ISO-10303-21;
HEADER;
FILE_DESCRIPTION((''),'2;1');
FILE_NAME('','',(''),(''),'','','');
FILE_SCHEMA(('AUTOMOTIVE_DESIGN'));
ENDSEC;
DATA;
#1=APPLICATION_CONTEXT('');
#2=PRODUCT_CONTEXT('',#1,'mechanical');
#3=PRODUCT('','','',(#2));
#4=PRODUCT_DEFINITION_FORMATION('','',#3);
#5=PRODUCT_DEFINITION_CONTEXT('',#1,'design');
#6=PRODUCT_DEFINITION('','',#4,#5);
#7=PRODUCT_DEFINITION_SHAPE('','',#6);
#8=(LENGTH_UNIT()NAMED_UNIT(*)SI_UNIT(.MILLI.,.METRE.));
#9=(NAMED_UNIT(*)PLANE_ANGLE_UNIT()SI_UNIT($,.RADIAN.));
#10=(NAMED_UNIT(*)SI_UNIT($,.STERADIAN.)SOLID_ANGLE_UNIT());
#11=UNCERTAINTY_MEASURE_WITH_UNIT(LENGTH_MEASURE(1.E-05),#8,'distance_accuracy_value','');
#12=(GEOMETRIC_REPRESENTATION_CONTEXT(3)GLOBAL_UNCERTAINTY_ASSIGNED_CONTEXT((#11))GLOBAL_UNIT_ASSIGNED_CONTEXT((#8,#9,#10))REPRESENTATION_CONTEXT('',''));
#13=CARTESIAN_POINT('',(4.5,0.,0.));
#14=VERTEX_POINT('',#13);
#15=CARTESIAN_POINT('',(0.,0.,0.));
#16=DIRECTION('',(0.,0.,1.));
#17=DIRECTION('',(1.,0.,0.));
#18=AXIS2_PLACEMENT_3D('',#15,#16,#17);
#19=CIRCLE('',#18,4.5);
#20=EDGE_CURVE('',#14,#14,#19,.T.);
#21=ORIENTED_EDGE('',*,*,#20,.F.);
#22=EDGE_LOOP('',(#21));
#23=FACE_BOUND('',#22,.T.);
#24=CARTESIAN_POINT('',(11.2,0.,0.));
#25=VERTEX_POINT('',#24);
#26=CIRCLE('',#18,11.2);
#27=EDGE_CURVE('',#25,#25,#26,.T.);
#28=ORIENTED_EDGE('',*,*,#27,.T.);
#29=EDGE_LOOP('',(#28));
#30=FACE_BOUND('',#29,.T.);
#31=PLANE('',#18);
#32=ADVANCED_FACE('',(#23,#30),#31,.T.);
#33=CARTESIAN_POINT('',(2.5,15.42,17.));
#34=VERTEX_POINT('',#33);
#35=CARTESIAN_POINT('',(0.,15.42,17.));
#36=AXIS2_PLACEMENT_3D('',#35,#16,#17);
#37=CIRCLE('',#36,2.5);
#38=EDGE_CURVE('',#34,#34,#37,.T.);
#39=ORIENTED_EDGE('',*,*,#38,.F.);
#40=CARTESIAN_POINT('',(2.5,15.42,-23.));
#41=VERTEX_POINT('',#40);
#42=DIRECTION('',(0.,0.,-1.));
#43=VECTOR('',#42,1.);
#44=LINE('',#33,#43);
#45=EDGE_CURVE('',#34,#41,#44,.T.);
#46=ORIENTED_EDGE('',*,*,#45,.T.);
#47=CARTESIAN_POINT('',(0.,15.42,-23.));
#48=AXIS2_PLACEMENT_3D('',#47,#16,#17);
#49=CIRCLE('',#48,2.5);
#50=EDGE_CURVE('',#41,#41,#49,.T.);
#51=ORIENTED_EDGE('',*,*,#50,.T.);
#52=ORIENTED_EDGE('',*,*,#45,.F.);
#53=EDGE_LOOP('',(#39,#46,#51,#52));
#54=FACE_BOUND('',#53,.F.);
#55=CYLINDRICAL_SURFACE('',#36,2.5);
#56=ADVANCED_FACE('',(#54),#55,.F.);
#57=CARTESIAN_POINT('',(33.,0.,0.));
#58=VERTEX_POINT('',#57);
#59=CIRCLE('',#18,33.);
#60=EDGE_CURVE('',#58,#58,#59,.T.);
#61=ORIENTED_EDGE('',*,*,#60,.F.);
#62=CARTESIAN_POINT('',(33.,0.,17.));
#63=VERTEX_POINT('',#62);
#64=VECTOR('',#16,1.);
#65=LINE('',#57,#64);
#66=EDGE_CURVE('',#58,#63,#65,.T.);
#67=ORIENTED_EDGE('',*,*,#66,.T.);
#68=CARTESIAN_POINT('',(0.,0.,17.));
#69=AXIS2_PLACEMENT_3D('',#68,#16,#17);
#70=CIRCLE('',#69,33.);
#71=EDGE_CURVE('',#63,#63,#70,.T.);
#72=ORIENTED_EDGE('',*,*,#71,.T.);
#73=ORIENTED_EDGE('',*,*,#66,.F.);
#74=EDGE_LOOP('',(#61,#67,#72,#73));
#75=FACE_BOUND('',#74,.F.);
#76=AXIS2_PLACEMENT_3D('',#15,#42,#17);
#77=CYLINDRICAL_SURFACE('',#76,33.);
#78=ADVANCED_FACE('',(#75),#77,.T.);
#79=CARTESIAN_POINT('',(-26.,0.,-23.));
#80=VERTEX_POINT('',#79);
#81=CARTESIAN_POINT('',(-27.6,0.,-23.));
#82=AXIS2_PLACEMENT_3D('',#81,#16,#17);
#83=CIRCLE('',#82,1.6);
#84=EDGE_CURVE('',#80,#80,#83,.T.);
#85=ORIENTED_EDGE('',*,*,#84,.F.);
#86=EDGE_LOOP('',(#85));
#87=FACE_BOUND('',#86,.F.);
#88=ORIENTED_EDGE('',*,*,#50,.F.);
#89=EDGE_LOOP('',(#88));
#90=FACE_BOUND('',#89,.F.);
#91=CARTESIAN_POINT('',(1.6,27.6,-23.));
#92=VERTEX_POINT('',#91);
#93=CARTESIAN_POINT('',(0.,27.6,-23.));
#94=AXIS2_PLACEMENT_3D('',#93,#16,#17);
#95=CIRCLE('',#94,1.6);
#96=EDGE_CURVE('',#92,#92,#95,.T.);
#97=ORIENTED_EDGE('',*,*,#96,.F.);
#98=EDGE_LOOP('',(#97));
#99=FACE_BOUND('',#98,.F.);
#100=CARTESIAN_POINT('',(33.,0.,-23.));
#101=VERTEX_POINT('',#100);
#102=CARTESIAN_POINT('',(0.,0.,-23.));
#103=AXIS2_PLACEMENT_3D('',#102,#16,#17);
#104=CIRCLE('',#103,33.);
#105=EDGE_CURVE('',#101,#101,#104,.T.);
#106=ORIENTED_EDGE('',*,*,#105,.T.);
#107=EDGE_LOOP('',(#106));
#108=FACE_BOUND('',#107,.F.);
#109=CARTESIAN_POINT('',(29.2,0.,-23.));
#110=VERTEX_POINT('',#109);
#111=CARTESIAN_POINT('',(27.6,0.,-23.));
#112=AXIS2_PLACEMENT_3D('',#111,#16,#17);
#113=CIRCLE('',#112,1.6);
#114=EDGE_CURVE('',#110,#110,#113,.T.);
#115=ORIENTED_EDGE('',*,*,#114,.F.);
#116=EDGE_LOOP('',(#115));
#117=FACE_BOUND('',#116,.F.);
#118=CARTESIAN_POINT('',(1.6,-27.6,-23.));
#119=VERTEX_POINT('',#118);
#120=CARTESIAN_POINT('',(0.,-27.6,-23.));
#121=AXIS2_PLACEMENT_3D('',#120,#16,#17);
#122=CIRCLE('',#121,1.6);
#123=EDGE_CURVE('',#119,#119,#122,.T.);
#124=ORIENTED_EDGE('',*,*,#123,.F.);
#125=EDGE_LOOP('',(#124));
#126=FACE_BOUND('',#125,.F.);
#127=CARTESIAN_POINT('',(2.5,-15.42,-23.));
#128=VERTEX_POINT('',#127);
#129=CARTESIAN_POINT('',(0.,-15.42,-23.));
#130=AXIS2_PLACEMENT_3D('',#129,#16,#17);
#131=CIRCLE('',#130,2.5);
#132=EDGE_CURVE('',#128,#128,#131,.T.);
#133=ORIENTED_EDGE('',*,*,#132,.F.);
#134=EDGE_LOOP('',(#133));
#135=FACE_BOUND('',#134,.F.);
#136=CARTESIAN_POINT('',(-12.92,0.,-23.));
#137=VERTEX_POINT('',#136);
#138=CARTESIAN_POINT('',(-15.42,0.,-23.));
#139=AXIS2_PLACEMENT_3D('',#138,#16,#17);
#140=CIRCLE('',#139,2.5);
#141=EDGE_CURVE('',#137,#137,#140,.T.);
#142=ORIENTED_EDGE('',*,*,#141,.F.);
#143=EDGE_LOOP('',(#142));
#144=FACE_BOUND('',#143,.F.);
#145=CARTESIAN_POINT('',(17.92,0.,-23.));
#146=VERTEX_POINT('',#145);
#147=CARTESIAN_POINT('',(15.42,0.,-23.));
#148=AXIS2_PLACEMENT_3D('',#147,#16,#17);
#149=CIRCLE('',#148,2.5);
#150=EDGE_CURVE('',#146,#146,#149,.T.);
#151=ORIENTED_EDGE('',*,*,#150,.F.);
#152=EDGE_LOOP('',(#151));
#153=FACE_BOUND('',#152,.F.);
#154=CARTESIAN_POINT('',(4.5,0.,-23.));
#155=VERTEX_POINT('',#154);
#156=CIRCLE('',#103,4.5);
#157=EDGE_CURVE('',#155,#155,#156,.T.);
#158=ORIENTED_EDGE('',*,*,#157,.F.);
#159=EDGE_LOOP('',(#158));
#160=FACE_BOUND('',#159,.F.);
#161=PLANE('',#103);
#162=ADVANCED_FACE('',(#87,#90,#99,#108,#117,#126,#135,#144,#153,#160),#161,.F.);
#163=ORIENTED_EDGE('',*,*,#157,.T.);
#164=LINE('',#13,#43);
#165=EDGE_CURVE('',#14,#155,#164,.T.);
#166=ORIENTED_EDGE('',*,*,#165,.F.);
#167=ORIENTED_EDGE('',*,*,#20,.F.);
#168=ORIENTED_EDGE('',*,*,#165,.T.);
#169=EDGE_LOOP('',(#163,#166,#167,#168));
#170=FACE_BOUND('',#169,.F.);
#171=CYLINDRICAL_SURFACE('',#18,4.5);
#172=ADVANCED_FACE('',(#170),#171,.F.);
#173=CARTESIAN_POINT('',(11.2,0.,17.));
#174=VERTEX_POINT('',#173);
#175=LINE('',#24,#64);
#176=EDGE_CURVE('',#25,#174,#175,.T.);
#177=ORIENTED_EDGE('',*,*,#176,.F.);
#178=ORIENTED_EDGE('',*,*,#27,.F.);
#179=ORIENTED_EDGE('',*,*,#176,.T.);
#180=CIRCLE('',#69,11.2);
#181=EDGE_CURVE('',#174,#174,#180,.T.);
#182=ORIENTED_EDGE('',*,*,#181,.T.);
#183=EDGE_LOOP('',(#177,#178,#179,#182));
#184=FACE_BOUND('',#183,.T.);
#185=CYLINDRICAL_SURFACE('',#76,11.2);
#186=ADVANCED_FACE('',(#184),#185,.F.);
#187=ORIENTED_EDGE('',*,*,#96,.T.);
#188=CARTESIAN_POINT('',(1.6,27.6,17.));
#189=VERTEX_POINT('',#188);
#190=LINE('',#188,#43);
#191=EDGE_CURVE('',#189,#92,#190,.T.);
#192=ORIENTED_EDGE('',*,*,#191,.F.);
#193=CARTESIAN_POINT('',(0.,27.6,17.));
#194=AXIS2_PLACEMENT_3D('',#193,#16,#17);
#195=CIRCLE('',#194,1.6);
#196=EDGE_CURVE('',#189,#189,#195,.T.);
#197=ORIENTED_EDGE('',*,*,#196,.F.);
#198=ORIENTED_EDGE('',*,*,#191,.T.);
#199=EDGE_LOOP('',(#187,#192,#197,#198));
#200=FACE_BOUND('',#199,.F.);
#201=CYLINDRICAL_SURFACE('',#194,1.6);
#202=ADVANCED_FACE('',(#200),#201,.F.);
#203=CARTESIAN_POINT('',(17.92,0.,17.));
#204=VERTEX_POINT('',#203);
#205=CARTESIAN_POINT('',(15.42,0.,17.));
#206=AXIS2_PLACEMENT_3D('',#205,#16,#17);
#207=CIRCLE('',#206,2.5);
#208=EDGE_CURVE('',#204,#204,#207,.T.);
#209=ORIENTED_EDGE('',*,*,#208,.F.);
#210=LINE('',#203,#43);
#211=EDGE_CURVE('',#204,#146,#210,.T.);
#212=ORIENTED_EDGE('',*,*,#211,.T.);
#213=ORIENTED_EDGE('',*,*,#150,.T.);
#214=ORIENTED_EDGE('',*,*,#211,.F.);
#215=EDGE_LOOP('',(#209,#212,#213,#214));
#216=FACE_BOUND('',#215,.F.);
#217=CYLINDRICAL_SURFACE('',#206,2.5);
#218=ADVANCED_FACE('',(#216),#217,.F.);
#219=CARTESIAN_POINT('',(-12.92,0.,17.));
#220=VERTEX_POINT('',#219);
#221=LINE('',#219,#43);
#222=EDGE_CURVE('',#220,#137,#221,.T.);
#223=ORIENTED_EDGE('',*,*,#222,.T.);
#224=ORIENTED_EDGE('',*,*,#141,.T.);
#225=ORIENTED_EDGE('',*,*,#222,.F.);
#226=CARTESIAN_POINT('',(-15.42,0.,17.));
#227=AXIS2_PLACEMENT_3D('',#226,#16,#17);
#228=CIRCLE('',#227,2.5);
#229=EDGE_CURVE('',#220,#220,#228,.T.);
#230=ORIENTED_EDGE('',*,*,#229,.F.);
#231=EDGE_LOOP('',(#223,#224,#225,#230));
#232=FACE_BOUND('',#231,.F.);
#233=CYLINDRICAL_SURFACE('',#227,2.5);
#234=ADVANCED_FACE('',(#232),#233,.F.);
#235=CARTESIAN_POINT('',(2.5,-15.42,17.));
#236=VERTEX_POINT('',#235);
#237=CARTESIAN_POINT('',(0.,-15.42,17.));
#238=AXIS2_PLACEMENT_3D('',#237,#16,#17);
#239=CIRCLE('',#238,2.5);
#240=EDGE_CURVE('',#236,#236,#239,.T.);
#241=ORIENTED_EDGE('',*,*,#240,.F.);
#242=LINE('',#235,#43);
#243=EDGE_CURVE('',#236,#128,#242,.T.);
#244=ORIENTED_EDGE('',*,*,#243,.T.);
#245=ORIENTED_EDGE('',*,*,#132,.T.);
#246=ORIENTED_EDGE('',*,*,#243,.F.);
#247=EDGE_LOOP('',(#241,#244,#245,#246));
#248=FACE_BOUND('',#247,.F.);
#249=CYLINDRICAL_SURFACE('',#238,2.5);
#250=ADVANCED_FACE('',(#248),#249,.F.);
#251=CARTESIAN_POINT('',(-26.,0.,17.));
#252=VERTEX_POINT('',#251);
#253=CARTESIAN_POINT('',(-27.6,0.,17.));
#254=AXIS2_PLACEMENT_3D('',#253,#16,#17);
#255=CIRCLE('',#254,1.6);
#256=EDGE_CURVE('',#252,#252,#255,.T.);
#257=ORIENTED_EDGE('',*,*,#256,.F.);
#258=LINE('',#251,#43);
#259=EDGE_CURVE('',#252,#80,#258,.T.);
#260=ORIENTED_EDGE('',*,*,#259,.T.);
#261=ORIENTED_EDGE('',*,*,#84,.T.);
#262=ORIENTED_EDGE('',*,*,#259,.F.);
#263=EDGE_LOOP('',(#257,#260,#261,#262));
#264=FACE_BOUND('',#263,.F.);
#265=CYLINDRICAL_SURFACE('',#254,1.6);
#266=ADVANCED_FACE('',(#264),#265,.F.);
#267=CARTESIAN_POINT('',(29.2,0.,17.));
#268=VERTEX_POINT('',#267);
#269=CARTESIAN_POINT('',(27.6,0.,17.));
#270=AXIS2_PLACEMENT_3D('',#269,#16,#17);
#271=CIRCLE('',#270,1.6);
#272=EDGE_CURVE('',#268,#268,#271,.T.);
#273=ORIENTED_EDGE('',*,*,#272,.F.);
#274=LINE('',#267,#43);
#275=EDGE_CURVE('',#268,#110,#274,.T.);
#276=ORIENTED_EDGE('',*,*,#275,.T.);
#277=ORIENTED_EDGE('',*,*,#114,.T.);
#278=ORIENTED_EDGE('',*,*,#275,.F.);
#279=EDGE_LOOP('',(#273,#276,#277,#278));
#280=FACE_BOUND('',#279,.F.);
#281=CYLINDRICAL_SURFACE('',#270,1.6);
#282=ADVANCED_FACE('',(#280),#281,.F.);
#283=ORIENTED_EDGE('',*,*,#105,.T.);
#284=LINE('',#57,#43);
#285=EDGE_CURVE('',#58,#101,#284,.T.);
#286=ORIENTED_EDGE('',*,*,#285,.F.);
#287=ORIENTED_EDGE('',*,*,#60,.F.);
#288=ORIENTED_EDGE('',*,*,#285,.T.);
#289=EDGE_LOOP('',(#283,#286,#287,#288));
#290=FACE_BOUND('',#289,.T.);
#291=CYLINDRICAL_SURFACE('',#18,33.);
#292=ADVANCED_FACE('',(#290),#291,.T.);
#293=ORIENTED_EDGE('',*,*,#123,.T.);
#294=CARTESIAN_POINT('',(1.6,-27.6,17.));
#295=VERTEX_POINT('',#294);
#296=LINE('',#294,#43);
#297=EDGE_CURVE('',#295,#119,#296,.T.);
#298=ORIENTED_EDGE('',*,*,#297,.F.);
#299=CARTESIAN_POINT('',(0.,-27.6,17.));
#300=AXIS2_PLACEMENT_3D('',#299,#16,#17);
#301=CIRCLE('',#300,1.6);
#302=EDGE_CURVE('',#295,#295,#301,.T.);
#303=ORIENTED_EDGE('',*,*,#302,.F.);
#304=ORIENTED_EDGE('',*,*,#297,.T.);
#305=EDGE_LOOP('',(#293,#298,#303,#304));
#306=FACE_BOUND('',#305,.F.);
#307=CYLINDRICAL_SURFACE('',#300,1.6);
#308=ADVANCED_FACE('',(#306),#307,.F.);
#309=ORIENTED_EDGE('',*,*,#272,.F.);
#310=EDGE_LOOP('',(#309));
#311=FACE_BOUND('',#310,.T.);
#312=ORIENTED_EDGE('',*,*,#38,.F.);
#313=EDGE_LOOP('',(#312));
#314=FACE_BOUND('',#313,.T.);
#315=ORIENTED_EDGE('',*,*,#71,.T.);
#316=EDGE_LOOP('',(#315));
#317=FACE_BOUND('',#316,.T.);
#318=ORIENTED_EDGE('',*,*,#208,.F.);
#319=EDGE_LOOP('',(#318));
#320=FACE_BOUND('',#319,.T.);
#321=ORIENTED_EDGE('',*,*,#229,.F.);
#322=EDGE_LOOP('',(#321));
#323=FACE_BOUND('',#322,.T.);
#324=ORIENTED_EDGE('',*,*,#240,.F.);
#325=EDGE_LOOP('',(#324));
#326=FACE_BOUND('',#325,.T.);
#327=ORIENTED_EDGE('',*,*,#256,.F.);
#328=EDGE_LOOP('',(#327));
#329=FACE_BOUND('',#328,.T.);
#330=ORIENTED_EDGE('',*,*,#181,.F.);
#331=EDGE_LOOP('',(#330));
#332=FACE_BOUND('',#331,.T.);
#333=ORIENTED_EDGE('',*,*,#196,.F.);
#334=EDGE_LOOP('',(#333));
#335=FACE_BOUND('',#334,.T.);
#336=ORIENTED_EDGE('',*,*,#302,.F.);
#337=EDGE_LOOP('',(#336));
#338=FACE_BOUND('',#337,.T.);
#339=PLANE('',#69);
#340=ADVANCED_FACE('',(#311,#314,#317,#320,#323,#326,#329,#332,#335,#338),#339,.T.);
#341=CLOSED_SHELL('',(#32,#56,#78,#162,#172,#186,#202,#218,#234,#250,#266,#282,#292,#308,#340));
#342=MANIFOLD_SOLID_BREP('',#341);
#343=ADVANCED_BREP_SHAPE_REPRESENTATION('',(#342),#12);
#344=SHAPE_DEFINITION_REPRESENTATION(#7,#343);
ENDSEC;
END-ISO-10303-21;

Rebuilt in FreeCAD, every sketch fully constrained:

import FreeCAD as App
import Part
import Sketcher
from FreeCAD import Vector
Q = App.Units.Quantity

doc = App.newDocument("Part")
body = doc.addObject("PartDesign::Body", "Body")

# Sketch on XY plane
sketch1 = doc.addObject("Sketcher::SketchObject", "Sketch")
body.addObject(sketch1)
sketch1.AttachmentSupport = (doc.XY_Plane, [""])
sketch1.MapMode = "FlatFace"
sketch1.addGeometry(Part.Circle(Vector(0, 0, 0), Vector(0, 0, 1), 33), False)
sketch1.addConstraint([
    Sketcher.Constraint("Coincident", 0, 3, -1, 1),
    Sketcher.Constraint("Diameter", 0, Q("66 mm")),
])
pad1 = doc.addObject("PartDesign::Pad", "Pad")
body.addObject(pad1)
pad1.Profile = sketch1
pad1.Length = 23
pad1.Reversed = True

# Sketch on XY plane
sketch2 = doc.addObject("Sketcher::SketchObject", "Sketch001")
body.addObject(sketch2)
sketch2.AttachmentSupport = (doc.XY_Plane, [""])
sketch2.MapMode = "FlatFace"
sketch2.addGeometry(Part.Circle(Vector(0, 0, 0), Vector(0, 0, 1), 4.5), False)
sketch2.addConstraint([
    Sketcher.Constraint("Coincident", 0, 3, -1, 1),
    Sketcher.Constraint("Diameter", 0, Q("9 mm")),
])
pocket1 = doc.addObject("PartDesign::Pocket", "Pocket")
body.addObject(pocket1)
pocket1.Profile = sketch2
pocket1.Type = "ThroughAll"

# Sketch on XY plane
sketch3 = doc.addObject("Sketcher::SketchObject", "Sketch002")
body.addObject(sketch3)
sketch3.AttachmentSupport = (doc.XY_Plane, [""])
sketch3.MapMode = "FlatFace"
sketch3.addGeometry([
    Part.Circle(Vector(0, 0, 0), Vector(0, 0, 1), 33),
    Part.Circle(Vector(0, 0, 0), Vector(0, 0, 1), 11),
], False)
sketch3.addConstraint([
    Sketcher.Constraint("Coincident", 0, 3, -1, 1),
    Sketcher.Constraint("Coincident", 1, 3, -1, 1),
    Sketcher.Constraint("Diameter", 0, Q("66 mm")),
    Sketcher.Constraint("Diameter", 1, Q("22.4 mm")),
])
pad2 = doc.addObject("PartDesign::Pad", "Pad001")
body.addObject(pad2)
pad2.Profile = sketch3
pad2.Length = 17

# Sketch on XY plane
sketch4 = doc.addObject("Sketcher::SketchObject", "Sketch003")
body.addObject(sketch4)
sketch4.AttachmentSupport = (doc.XY_Plane, [""])
sketch4.MapMode = "FlatFace"
sketch4.AttachmentOffset = App.Placement(Vector(0, 0, 17), App.Rotation())
sketch4.addGeometry([
    Part.Circle(Vector(15.4, 0, 0), Vector(0, 0, 1), 2.5),  # 0
    Part.Circle(Vector(0, -15.4, 0), Vector(0, 0, 1), 2.5),  # 1
    Part.Circle(Vector(0, 15.4, 0), Vector(0, 0, 1), 2.5),  # 2
    Part.Circle(Vector(-15.4, 0, 0), Vector(0, 0, 1), 2.5),  # 3
    Part.Circle(Vector(27.6, 0, 0), Vector(0, 0, 1), 1.6),  # 4
    Part.Circle(Vector(0, 27.6, 0), Vector(0, 0, 1), 1.6),  # 5
    Part.Circle(Vector(0, -27.6, 0), Vector(0, 0, 1), 1.6),  # 6
    Part.Circle(Vector(-27.6, 0, 0), Vector(0, 0, 1), 1.6),  # 7
], False)
sketch4.addConstraint([
    Sketcher.Constraint("Equal", 0, 1),
    Sketcher.Constraint("Equal", 1, 2),
    Sketcher.Constraint("Equal", 2, 3),
    Sketcher.Constraint("Equal", 4, 5),
    Sketcher.Constraint("Equal", 5, 6),
    Sketcher.Constraint("Equal", 6, 7),
    Sketcher.Constraint("Symmetric", 1, 3, 2, 3, -1, 1),
    Sketcher.Constraint("Symmetric", 0, 3, 3, 3, -1, 1),
    Sketcher.Constraint("Symmetric", 5, 3, 6, 3, -1, 1),
    Sketcher.Constraint("Symmetric", 4, 3, 7, 3, -1, 1),
    Sketcher.Constraint("PointOnObject", 0, 3, -1),
    Sketcher.Constraint("PointOnObject", 1, 3, -2),
    Sketcher.Constraint("PointOnObject", 4, 3, -1),
    Sketcher.Constraint("PointOnObject", 5, 3, -2),
    Sketcher.Constraint("Diameter", 0, Q("5 mm")),
    Sketcher.Constraint("Diameter", 4, Q("3.2 mm")),
    Sketcher.Constraint("DistanceX", -1, 1, 4, 3, Q("27.6 mm")),
    Sketcher.Constraint("DistanceY", -1, 1, 5, 3, Q("27.6 mm")),
    Sketcher.Constraint("DistanceX", -1, 1, 0, 3, Q("15.42 mm")),
    Sketcher.Constraint("DistanceY", 1, 3, -1, 1, Q("15.42 mm")),
])
pocket2 = doc.addObject("PartDesign::Pocket", "Pocket001")
body.addObject(pocket2)
pocket2.Profile = sketch4
pocket2.Type = "ThroughAll"

doc.recompute()
